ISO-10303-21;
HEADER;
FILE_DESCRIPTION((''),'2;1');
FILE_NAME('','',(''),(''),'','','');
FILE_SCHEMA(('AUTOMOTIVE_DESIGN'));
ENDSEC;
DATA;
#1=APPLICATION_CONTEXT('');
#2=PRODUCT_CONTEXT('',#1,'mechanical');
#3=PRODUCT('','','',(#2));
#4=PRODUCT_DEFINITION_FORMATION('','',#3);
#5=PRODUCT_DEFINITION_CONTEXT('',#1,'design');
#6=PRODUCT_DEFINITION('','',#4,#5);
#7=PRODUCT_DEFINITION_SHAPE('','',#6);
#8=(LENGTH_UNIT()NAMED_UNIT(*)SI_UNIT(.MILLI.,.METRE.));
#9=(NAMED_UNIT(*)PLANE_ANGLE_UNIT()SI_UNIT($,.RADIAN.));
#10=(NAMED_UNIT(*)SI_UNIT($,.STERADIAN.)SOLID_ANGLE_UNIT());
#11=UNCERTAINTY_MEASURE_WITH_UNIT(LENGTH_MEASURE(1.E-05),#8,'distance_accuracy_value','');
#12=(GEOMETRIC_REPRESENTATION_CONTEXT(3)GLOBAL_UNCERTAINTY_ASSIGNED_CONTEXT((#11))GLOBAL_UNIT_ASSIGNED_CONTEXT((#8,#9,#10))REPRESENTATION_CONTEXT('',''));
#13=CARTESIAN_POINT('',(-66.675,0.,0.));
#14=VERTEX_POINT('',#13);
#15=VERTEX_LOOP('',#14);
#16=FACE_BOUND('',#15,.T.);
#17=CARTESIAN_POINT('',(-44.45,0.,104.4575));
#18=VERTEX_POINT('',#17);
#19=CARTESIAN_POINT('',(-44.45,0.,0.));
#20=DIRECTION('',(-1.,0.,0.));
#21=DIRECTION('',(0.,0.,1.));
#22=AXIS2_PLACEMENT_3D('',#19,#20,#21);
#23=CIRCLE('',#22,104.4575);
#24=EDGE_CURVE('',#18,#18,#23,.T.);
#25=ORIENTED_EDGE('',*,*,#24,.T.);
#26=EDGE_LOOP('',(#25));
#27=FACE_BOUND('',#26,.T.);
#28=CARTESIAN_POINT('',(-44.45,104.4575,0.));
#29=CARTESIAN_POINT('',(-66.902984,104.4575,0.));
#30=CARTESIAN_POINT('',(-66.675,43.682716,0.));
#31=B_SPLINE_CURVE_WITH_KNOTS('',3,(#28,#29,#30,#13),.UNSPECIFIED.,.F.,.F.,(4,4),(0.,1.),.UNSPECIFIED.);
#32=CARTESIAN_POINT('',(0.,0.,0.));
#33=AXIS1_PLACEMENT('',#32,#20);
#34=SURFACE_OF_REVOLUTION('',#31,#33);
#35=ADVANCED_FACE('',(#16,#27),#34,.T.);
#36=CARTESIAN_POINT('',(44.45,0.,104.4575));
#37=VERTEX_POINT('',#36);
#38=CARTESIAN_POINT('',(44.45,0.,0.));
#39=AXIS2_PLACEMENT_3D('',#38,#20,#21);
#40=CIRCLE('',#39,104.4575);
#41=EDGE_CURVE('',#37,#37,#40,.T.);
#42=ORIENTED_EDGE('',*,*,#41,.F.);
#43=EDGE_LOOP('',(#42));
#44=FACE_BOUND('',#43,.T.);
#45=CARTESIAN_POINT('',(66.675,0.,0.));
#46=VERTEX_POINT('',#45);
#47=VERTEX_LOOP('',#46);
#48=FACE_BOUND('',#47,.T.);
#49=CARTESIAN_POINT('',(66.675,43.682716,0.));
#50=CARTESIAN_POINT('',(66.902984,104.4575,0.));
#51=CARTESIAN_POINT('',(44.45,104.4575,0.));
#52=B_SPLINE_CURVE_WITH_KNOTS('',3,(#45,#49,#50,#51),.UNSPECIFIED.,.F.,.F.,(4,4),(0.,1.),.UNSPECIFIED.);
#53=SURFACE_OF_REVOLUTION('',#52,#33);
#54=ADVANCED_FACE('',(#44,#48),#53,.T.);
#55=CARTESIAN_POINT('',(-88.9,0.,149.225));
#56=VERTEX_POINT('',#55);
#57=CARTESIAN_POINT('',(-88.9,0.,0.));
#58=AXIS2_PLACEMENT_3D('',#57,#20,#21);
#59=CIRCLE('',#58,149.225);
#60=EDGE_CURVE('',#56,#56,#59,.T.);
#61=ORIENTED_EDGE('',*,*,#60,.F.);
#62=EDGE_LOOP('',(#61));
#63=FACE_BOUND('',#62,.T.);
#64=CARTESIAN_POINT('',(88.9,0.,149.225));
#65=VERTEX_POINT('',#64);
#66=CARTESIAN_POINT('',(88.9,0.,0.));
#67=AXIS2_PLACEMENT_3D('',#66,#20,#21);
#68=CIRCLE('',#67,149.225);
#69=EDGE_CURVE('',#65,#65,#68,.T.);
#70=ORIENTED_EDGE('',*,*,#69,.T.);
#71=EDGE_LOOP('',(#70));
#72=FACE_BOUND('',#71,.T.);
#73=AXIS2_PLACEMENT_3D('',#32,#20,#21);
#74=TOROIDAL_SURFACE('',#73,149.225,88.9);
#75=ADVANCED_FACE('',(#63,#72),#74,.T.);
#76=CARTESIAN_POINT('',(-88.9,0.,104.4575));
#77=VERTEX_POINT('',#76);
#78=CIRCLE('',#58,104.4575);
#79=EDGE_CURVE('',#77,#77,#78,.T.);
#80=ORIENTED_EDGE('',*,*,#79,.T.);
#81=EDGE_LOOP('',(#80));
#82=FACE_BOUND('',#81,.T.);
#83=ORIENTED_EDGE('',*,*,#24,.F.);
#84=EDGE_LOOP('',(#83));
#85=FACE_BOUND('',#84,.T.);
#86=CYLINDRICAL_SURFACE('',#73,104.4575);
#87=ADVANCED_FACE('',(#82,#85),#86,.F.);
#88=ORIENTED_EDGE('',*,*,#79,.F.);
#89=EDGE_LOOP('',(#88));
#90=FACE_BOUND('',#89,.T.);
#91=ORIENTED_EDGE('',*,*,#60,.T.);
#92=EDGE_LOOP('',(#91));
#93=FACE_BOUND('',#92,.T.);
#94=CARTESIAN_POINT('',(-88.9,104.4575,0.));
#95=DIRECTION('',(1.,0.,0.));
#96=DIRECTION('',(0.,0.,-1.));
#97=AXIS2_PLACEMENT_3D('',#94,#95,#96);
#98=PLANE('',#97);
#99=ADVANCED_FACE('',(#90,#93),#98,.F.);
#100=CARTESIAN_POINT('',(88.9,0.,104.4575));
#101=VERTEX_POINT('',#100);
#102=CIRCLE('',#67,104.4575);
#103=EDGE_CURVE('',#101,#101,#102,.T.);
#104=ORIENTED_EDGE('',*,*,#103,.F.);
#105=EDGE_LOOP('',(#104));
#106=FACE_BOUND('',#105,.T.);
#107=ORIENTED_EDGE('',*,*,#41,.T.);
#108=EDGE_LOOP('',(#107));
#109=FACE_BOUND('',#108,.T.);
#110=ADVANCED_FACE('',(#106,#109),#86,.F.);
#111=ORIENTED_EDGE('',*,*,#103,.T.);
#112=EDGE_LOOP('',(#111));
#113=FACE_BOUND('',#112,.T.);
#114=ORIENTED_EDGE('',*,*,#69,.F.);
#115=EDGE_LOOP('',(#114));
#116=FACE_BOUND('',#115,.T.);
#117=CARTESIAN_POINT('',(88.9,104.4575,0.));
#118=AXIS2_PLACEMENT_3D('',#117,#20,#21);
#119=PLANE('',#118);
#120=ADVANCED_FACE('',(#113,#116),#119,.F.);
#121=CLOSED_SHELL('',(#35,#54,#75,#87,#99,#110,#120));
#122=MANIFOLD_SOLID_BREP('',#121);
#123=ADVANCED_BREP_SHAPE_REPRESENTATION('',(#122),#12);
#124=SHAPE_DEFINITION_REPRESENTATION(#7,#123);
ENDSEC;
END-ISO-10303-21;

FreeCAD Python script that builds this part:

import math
import FreeCAD as App
import Part
import Sketcher

V = App.Vector
Q = App.Units.Quantity

doc = App.newDocument("Part")
body = doc.addObject("PartDesign::Body", "Body")

sketch1 = body.newObject("Sketcher::SketchObject", "Sketch")
sketch1.AttachmentSupport = (doc.getObject("XY_Plane"), [""])
sketch1.MapMode = "FlatFace"
sketch1.addGeometry([
    Part.LineSegment(V(-66.675, 0, 0), V(66.675, 0, 0)),
    Part.BSplineCurve([V(44.45, 104.4575, 0), V(66.902984, 104.4575, 0), V(66.675, 43.682716, 0), V(66.675, 0, 0)], [4, 4], [0, 1], False, 3, [1, 1, 1, 1], False),
    Part.LineSegment(V(44.45, 104.4575, 0), V(88.9, 104.4575, 0)),
    Part.LineSegment(V(88.9, 104.4575, 0), V(88.9, 149.225, 0)),
    Part.ArcOfCircle(Part.Circle(V(0, 149.225, 0), V(0, 0, 1), 88.9), math.radians(0), math.radians(180)),
    Part.LineSegment(V(-88.9, 149.225, 0), V(-88.9, 104.4575, 0)),
    Part.LineSegment(V(-88.9, 104.4575, 0), V(-44.45, 104.4575, 0)),
    Part.BSplineCurve([V(-44.45, 104.4575, 0), V(-66.902984, 104.4575, 0), V(-66.675, 43.682716, 0), V(-66.675, 0, 0)], [4, 4], [0, 1], False, 3, [1, 1, 1, 1], False),
], False)
sketch1.addConstraint([
    Sketcher.Constraint("Block", 1),
    Sketcher.Constraint("Block", 7),
    Sketcher.Constraint("Coincident", 0, 2, 1, 2),
    Sketcher.Constraint("Coincident", 1, 1, 2, 1),
    Sketcher.Constraint("Coincident", 2, 2, 3, 1),
    Sketcher.Constraint("Tangent", 3, 2, 4, 1),
    Sketcher.Constraint("Tangent", 4, 2, 5, 1),
    Sketcher.Constraint("Coincident", 5, 2, 6, 1),
    Sketcher.Constraint("Coincident", 6, 2, 7, 1),
    Sketcher.Constraint("Coincident", 7, 2, 0, 1),
    Sketcher.Constraint("Horizontal", 2),
    Sketcher.Constraint("Vertical", 3),
    Sketcher.Constraint("Vertical", 5),
    Sketcher.Constraint("Horizontal", 6),
    Sketcher.Constraint("PointOnObject", 4, 3, -2),
    Sketcher.Constraint("Radius", 4, Q("3.5 in")),
    Sketcher.Constraint("DistanceY", 3, 1, 3, 2, Q("1.7625 in")),
])
revolution = body.newObject("PartDesign::Revolution", "Revolution")
revolution.Profile = sketch1
revolution.ReferenceAxis = (sketch1, ["H_Axis"])
revolution.Angle = 360

doc.recompute()
